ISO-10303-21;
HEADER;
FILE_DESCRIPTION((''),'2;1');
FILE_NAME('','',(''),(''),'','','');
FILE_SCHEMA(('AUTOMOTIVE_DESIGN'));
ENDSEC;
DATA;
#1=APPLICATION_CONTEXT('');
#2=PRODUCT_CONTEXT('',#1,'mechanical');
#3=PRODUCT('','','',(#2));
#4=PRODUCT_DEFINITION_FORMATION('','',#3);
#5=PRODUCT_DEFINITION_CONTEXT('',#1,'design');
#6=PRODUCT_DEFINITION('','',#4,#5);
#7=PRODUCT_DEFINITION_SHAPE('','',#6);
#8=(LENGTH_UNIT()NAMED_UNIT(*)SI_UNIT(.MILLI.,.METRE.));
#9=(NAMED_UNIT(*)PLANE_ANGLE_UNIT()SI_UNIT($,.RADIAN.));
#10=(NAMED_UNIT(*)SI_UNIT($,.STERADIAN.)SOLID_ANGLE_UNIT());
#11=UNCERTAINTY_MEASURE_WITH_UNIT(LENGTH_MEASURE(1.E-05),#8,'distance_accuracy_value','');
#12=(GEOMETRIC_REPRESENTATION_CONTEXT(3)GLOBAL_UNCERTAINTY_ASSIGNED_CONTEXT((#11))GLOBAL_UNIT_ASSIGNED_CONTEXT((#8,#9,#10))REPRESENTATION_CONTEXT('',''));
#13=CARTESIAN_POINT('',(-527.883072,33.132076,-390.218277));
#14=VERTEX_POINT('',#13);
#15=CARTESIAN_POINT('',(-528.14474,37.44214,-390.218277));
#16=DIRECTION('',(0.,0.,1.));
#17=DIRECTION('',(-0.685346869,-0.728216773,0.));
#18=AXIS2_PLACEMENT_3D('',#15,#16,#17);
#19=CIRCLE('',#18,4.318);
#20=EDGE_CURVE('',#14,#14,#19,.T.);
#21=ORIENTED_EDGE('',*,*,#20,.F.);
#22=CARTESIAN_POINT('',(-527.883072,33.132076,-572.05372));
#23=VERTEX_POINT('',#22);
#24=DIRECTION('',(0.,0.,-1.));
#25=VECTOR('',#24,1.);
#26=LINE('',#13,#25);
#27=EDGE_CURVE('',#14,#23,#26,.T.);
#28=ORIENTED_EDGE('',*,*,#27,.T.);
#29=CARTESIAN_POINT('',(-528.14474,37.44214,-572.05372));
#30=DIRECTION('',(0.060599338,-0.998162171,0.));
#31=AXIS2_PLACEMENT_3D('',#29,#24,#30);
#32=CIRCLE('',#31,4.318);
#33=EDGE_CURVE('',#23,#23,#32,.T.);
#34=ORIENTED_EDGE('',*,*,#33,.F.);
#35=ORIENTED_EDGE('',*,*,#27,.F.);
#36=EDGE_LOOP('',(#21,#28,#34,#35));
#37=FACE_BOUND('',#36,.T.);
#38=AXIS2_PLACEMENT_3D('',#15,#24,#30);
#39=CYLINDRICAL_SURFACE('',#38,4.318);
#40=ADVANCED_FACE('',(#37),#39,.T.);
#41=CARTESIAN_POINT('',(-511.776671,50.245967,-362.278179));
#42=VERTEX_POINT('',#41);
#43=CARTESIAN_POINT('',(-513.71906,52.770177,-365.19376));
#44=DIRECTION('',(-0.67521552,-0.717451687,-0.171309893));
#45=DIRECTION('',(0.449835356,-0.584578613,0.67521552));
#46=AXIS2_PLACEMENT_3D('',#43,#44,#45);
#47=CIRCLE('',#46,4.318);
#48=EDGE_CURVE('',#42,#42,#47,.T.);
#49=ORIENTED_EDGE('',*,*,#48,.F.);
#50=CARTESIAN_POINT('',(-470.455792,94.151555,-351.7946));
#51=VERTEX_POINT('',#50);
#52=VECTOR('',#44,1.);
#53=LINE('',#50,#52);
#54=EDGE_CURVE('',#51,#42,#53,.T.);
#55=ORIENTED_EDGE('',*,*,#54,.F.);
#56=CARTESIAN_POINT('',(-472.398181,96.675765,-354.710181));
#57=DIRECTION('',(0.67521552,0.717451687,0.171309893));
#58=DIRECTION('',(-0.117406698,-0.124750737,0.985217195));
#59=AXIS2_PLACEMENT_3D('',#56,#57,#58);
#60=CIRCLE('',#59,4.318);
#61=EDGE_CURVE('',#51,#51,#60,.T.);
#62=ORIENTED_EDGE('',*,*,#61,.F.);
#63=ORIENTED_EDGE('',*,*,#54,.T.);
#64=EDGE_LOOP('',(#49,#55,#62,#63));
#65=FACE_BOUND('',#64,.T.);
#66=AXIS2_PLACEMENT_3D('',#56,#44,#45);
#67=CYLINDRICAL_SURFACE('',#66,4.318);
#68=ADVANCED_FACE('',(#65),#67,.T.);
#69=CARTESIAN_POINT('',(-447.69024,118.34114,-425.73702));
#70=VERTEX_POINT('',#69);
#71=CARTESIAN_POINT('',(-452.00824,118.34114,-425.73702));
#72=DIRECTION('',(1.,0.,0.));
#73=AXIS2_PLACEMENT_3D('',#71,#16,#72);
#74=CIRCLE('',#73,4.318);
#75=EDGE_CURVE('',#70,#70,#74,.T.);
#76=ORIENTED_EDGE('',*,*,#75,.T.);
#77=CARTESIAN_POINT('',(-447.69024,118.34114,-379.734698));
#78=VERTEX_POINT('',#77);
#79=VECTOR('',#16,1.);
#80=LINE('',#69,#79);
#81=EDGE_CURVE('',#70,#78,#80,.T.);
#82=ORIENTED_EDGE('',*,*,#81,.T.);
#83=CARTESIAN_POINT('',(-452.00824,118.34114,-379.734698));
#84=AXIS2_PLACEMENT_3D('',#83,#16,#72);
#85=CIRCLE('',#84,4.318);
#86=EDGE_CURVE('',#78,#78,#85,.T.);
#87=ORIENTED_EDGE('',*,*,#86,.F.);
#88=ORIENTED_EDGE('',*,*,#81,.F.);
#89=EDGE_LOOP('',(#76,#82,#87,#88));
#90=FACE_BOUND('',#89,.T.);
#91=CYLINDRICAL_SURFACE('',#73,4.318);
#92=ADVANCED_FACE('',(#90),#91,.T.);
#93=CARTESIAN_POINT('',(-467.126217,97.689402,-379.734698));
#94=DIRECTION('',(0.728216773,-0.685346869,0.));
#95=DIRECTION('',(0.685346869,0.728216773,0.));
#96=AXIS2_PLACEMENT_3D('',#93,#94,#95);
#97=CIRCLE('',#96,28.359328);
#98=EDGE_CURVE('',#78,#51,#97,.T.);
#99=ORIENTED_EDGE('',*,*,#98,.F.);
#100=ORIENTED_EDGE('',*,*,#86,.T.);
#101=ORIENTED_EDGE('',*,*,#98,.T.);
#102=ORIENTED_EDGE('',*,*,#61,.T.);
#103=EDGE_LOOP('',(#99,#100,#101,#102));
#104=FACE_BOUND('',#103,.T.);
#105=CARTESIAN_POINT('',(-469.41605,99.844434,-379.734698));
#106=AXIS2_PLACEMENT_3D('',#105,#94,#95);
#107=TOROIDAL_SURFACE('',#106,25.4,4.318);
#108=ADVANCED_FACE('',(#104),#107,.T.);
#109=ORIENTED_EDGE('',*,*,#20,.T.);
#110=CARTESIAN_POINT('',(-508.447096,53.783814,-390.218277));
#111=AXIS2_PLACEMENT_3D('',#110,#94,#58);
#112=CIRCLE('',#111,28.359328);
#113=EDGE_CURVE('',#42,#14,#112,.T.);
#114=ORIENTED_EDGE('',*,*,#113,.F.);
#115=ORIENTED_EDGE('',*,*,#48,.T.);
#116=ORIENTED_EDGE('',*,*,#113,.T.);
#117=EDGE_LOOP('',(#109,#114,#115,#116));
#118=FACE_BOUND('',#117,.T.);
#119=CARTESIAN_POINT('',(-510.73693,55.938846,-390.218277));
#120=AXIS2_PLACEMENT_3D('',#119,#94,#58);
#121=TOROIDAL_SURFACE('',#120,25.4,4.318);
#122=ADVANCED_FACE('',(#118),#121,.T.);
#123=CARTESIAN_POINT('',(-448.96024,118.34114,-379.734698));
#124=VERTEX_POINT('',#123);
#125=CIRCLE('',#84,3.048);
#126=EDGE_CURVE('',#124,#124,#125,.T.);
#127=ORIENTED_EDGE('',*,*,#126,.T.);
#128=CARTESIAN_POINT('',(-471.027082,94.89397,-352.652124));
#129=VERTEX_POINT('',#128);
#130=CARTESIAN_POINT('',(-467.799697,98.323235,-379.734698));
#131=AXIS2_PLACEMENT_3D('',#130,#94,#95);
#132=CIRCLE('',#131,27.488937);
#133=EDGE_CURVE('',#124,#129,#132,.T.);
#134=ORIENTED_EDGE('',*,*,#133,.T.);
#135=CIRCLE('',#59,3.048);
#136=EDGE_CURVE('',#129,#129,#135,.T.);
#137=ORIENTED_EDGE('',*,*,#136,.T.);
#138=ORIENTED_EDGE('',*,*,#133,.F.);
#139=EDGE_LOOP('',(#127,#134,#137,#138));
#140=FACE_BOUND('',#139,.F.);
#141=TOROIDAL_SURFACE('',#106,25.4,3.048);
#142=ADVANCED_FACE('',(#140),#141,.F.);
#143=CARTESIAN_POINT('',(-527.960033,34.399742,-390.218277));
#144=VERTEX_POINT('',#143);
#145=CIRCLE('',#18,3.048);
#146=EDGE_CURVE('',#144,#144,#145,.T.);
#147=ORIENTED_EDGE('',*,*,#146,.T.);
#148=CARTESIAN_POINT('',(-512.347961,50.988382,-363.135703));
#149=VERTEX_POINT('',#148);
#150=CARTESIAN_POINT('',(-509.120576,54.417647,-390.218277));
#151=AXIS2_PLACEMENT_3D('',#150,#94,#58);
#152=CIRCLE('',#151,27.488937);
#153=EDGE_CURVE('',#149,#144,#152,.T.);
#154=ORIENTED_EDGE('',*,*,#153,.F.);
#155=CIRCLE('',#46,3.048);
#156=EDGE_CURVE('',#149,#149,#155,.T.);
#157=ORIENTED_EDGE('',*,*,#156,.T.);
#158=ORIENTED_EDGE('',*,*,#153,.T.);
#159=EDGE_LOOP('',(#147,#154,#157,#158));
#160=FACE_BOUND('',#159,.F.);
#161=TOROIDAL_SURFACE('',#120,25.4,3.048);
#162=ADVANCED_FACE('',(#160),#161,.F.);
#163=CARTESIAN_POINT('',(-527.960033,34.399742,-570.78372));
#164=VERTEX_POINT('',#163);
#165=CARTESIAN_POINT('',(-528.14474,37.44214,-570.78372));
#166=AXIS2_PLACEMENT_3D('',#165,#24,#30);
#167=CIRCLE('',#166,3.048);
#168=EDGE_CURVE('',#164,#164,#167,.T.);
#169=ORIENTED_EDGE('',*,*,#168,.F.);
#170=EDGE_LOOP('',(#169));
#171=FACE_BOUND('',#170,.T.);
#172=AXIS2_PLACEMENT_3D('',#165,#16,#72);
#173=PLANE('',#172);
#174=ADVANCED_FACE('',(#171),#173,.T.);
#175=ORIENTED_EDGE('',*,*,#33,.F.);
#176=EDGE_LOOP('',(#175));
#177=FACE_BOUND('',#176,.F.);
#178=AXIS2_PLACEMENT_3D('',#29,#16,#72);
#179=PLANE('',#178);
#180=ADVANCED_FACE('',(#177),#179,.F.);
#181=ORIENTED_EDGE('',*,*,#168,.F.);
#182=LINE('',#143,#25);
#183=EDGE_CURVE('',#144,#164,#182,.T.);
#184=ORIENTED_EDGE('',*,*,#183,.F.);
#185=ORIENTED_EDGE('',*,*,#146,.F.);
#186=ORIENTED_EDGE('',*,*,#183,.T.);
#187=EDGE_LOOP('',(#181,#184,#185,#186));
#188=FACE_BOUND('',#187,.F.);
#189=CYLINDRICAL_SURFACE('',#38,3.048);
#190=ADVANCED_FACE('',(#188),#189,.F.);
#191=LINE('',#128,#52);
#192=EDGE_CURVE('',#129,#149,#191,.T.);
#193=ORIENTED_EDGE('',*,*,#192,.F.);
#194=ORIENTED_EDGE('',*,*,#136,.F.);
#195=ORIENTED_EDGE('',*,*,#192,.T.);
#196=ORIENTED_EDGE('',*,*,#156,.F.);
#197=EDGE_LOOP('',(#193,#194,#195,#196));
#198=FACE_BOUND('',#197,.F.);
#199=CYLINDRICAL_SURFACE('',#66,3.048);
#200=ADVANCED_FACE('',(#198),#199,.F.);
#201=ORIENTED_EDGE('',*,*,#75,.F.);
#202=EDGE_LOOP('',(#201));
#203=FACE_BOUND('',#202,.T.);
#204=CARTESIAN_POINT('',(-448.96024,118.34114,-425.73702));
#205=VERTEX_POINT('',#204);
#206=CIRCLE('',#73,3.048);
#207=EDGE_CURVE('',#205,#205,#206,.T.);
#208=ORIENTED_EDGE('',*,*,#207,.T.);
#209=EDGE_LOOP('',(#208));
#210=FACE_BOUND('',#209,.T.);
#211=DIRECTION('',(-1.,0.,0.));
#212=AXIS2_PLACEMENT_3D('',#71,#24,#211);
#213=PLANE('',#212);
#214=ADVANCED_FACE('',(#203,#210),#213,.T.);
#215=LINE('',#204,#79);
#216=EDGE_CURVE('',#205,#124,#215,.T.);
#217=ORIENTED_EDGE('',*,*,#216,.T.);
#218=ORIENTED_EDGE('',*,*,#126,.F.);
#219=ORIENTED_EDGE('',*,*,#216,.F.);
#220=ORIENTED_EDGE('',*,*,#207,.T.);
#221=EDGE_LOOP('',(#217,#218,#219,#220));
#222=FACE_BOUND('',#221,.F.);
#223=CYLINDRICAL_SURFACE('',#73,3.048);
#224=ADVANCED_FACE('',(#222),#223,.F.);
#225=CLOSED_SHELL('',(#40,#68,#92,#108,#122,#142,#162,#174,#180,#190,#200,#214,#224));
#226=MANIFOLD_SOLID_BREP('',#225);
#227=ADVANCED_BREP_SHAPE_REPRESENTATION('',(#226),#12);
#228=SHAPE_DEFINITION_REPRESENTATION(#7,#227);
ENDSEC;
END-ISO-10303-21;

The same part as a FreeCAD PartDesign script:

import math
import FreeCAD as App
import Part
import Sketcher
Q = App.Units.Quantity


def faces_at(feature, points):
    """Names of the faces that lie closest to the given points."""
    faces = feature.Shape.Faces
    near = lambda p: min(range(len(faces)), key=lambda i: faces[i].distToShape(Part.Vertex(*p))[0])
    return sorted({f"Face{near(p) + 1}" for p in points})

doc = App.newDocument("Part")
params = doc.addObject("Spreadsheet::Sheet", "Params")
for row, (alias, value) in enumerate([
    ("sketch1_diameter", "0.34 in"),
    ("sketch2_radius", "1 in"),
    ("thickness_wall", "0.05 in"),
], start=1):
    params.set(f"A{row}", alias)
    params.set(f"B{row}", "=" + value)
    params.setAlias(f"B{row}", alias)

body = doc.addObject("PartDesign::Body", "Body")

# Sketch on XY plane
sketch1 = body.newObject("Sketcher::SketchObject", "Sketch")
sketch1.AttachmentSupport = (doc.getObject("XY_Plane"), [""])
sketch1.MapMode = "FlatFace"
sketch1.AttachmentOffset = App.Placement(App.Vector(0, 0, -16.7613 * 25.4), App.Rotation())
sketch1.addGeometry(Part.Circle(App.Vector(-452.00824, 118.34114, 0), App.Vector(0, 0, 1), 4.318), False)
sketch1.addConstraint(Sketcher.Constraint("Diameter", 0, Q("0.34 in")))
sketch1.addConstraint(Sketcher.Constraint("DistanceX", 0, 3, -1, 1, Q("17.7956 in")))
sketch1.addConstraint(Sketcher.Constraint("DistanceY", -1, 1, 0, 3, Q("4.6591 in")))
sketch1.setExpression("Constraints[0]", "Params.sketch1_diameter")

# Sketch on an angled plane
sketch2 = body.newObject("Sketcher::SketchObject", "Sketch001")
sketch2.Placement = App.Placement(App.Vector(-298.761645, 281.173636, 0), App.Rotation(App.Vector(-0.685346869, -0.728216773, 0), App.Vector(0, 0, 0.999999999), App.Vector(-0.728216773, 0.685346869, 0), "ZXY"))
sketch2.addGeometry(Part.LineSegment(App.Vector(223.604429, -425.737019, 0), App.Vector(223.604429, -379.734697, 0)), False)
sketch2.addGeometry(Part.ArcOfCircle(Part.Circle(App.Vector(249.004429, -379.734697, 0), App.Vector(0, 0, 1), 25.4), math.radians(80.136012), math.radians(180)), False)
sketch2.addGeometry(Part.LineSegment(App.Vector(253.3557, -354.71018, 0), App.Vector(313.647621, -365.19376, 0)), False)
sketch2.addGeometry(Part.ArcOfCircle(Part.Circle(App.Vector(309.296349, -390.218276, 0), App.Vector(0, 0, 1), 25.4), math.radians(0), math.radians(80.136012)), False)
sketch2.addGeometry(Part.LineSegment(App.Vector(334.696349, -390.218276, 0), App.Vector(334.696349, -572.053719, 0)), False)
sketch2.addConstraint(Sketcher.Constraint("Tangent", 0, 2, 1, 2))
sketch2.addConstraint(Sketcher.Constraint("Tangent", 1, 1, 2, 1))
sketch2.addConstraint(Sketcher.Constraint("Tangent", 2, 2, 3, 2))
sketch2.addConstraint(Sketcher.Constraint("Tangent", 3, 1, 4, 1))
sketch2.addConstraint(Sketcher.Constraint("Vertical", 0))
sketch2.addConstraint(Sketcher.Constraint("Vertical", 4))
sketch2.addConstraint(Sketcher.Constraint("Equal", 1, 3))
sketch2.addConstraint(Sketcher.Constraint("Radius", 1, Q("1 in")))
sketch2.addConstraint(Sketcher.Constraint("DistanceY", 0, 1, -1, 1, Q("16.7613 in")))
sketch2.addConstraint(Sketcher.Constraint("DistanceY", 4, 2, -1, 1, Q("22.5218 in")))
sketch2.addConstraint(Sketcher.Constraint("DistanceX", -1, 1, 1, 1, 253.3557))
sketch2.addConstraint(Sketcher.Constraint("DistanceY", 0, 1, 0, 2, 46.002322))
sketch2.addConstraint(Sketcher.Constraint("DistanceY", 4, 2, 4, 1, 181.835443))
sketch2.addConstraint(Sketcher.Constraint("DistanceX", -1, 1, 1, 3, 249.004429))
sketch2.setExpression("Constraints[7]", "Params.sketch2_radius")
doc.recompute()

additivepipe = body.newObject("PartDesign::AdditivePipe", "AdditivePipe")
additivepipe.Profile = sketch1
additivepipe.Spine = (sketch2, ["Edge1", "Edge2", "Edge3", "Edge4", "Edge5"])
doc.recompute()

thickness = body.newObject("PartDesign::Thickness", "Thickness")
thickness.Base = (additivepipe, faces_at(additivepipe, [(-452.008, 118.341, -425.737)]))
thickness.setExpression("Value", "Params.thickness_wall")
thickness.Reversed = True
thickness.Join = "Arc"

doc.recompute()
